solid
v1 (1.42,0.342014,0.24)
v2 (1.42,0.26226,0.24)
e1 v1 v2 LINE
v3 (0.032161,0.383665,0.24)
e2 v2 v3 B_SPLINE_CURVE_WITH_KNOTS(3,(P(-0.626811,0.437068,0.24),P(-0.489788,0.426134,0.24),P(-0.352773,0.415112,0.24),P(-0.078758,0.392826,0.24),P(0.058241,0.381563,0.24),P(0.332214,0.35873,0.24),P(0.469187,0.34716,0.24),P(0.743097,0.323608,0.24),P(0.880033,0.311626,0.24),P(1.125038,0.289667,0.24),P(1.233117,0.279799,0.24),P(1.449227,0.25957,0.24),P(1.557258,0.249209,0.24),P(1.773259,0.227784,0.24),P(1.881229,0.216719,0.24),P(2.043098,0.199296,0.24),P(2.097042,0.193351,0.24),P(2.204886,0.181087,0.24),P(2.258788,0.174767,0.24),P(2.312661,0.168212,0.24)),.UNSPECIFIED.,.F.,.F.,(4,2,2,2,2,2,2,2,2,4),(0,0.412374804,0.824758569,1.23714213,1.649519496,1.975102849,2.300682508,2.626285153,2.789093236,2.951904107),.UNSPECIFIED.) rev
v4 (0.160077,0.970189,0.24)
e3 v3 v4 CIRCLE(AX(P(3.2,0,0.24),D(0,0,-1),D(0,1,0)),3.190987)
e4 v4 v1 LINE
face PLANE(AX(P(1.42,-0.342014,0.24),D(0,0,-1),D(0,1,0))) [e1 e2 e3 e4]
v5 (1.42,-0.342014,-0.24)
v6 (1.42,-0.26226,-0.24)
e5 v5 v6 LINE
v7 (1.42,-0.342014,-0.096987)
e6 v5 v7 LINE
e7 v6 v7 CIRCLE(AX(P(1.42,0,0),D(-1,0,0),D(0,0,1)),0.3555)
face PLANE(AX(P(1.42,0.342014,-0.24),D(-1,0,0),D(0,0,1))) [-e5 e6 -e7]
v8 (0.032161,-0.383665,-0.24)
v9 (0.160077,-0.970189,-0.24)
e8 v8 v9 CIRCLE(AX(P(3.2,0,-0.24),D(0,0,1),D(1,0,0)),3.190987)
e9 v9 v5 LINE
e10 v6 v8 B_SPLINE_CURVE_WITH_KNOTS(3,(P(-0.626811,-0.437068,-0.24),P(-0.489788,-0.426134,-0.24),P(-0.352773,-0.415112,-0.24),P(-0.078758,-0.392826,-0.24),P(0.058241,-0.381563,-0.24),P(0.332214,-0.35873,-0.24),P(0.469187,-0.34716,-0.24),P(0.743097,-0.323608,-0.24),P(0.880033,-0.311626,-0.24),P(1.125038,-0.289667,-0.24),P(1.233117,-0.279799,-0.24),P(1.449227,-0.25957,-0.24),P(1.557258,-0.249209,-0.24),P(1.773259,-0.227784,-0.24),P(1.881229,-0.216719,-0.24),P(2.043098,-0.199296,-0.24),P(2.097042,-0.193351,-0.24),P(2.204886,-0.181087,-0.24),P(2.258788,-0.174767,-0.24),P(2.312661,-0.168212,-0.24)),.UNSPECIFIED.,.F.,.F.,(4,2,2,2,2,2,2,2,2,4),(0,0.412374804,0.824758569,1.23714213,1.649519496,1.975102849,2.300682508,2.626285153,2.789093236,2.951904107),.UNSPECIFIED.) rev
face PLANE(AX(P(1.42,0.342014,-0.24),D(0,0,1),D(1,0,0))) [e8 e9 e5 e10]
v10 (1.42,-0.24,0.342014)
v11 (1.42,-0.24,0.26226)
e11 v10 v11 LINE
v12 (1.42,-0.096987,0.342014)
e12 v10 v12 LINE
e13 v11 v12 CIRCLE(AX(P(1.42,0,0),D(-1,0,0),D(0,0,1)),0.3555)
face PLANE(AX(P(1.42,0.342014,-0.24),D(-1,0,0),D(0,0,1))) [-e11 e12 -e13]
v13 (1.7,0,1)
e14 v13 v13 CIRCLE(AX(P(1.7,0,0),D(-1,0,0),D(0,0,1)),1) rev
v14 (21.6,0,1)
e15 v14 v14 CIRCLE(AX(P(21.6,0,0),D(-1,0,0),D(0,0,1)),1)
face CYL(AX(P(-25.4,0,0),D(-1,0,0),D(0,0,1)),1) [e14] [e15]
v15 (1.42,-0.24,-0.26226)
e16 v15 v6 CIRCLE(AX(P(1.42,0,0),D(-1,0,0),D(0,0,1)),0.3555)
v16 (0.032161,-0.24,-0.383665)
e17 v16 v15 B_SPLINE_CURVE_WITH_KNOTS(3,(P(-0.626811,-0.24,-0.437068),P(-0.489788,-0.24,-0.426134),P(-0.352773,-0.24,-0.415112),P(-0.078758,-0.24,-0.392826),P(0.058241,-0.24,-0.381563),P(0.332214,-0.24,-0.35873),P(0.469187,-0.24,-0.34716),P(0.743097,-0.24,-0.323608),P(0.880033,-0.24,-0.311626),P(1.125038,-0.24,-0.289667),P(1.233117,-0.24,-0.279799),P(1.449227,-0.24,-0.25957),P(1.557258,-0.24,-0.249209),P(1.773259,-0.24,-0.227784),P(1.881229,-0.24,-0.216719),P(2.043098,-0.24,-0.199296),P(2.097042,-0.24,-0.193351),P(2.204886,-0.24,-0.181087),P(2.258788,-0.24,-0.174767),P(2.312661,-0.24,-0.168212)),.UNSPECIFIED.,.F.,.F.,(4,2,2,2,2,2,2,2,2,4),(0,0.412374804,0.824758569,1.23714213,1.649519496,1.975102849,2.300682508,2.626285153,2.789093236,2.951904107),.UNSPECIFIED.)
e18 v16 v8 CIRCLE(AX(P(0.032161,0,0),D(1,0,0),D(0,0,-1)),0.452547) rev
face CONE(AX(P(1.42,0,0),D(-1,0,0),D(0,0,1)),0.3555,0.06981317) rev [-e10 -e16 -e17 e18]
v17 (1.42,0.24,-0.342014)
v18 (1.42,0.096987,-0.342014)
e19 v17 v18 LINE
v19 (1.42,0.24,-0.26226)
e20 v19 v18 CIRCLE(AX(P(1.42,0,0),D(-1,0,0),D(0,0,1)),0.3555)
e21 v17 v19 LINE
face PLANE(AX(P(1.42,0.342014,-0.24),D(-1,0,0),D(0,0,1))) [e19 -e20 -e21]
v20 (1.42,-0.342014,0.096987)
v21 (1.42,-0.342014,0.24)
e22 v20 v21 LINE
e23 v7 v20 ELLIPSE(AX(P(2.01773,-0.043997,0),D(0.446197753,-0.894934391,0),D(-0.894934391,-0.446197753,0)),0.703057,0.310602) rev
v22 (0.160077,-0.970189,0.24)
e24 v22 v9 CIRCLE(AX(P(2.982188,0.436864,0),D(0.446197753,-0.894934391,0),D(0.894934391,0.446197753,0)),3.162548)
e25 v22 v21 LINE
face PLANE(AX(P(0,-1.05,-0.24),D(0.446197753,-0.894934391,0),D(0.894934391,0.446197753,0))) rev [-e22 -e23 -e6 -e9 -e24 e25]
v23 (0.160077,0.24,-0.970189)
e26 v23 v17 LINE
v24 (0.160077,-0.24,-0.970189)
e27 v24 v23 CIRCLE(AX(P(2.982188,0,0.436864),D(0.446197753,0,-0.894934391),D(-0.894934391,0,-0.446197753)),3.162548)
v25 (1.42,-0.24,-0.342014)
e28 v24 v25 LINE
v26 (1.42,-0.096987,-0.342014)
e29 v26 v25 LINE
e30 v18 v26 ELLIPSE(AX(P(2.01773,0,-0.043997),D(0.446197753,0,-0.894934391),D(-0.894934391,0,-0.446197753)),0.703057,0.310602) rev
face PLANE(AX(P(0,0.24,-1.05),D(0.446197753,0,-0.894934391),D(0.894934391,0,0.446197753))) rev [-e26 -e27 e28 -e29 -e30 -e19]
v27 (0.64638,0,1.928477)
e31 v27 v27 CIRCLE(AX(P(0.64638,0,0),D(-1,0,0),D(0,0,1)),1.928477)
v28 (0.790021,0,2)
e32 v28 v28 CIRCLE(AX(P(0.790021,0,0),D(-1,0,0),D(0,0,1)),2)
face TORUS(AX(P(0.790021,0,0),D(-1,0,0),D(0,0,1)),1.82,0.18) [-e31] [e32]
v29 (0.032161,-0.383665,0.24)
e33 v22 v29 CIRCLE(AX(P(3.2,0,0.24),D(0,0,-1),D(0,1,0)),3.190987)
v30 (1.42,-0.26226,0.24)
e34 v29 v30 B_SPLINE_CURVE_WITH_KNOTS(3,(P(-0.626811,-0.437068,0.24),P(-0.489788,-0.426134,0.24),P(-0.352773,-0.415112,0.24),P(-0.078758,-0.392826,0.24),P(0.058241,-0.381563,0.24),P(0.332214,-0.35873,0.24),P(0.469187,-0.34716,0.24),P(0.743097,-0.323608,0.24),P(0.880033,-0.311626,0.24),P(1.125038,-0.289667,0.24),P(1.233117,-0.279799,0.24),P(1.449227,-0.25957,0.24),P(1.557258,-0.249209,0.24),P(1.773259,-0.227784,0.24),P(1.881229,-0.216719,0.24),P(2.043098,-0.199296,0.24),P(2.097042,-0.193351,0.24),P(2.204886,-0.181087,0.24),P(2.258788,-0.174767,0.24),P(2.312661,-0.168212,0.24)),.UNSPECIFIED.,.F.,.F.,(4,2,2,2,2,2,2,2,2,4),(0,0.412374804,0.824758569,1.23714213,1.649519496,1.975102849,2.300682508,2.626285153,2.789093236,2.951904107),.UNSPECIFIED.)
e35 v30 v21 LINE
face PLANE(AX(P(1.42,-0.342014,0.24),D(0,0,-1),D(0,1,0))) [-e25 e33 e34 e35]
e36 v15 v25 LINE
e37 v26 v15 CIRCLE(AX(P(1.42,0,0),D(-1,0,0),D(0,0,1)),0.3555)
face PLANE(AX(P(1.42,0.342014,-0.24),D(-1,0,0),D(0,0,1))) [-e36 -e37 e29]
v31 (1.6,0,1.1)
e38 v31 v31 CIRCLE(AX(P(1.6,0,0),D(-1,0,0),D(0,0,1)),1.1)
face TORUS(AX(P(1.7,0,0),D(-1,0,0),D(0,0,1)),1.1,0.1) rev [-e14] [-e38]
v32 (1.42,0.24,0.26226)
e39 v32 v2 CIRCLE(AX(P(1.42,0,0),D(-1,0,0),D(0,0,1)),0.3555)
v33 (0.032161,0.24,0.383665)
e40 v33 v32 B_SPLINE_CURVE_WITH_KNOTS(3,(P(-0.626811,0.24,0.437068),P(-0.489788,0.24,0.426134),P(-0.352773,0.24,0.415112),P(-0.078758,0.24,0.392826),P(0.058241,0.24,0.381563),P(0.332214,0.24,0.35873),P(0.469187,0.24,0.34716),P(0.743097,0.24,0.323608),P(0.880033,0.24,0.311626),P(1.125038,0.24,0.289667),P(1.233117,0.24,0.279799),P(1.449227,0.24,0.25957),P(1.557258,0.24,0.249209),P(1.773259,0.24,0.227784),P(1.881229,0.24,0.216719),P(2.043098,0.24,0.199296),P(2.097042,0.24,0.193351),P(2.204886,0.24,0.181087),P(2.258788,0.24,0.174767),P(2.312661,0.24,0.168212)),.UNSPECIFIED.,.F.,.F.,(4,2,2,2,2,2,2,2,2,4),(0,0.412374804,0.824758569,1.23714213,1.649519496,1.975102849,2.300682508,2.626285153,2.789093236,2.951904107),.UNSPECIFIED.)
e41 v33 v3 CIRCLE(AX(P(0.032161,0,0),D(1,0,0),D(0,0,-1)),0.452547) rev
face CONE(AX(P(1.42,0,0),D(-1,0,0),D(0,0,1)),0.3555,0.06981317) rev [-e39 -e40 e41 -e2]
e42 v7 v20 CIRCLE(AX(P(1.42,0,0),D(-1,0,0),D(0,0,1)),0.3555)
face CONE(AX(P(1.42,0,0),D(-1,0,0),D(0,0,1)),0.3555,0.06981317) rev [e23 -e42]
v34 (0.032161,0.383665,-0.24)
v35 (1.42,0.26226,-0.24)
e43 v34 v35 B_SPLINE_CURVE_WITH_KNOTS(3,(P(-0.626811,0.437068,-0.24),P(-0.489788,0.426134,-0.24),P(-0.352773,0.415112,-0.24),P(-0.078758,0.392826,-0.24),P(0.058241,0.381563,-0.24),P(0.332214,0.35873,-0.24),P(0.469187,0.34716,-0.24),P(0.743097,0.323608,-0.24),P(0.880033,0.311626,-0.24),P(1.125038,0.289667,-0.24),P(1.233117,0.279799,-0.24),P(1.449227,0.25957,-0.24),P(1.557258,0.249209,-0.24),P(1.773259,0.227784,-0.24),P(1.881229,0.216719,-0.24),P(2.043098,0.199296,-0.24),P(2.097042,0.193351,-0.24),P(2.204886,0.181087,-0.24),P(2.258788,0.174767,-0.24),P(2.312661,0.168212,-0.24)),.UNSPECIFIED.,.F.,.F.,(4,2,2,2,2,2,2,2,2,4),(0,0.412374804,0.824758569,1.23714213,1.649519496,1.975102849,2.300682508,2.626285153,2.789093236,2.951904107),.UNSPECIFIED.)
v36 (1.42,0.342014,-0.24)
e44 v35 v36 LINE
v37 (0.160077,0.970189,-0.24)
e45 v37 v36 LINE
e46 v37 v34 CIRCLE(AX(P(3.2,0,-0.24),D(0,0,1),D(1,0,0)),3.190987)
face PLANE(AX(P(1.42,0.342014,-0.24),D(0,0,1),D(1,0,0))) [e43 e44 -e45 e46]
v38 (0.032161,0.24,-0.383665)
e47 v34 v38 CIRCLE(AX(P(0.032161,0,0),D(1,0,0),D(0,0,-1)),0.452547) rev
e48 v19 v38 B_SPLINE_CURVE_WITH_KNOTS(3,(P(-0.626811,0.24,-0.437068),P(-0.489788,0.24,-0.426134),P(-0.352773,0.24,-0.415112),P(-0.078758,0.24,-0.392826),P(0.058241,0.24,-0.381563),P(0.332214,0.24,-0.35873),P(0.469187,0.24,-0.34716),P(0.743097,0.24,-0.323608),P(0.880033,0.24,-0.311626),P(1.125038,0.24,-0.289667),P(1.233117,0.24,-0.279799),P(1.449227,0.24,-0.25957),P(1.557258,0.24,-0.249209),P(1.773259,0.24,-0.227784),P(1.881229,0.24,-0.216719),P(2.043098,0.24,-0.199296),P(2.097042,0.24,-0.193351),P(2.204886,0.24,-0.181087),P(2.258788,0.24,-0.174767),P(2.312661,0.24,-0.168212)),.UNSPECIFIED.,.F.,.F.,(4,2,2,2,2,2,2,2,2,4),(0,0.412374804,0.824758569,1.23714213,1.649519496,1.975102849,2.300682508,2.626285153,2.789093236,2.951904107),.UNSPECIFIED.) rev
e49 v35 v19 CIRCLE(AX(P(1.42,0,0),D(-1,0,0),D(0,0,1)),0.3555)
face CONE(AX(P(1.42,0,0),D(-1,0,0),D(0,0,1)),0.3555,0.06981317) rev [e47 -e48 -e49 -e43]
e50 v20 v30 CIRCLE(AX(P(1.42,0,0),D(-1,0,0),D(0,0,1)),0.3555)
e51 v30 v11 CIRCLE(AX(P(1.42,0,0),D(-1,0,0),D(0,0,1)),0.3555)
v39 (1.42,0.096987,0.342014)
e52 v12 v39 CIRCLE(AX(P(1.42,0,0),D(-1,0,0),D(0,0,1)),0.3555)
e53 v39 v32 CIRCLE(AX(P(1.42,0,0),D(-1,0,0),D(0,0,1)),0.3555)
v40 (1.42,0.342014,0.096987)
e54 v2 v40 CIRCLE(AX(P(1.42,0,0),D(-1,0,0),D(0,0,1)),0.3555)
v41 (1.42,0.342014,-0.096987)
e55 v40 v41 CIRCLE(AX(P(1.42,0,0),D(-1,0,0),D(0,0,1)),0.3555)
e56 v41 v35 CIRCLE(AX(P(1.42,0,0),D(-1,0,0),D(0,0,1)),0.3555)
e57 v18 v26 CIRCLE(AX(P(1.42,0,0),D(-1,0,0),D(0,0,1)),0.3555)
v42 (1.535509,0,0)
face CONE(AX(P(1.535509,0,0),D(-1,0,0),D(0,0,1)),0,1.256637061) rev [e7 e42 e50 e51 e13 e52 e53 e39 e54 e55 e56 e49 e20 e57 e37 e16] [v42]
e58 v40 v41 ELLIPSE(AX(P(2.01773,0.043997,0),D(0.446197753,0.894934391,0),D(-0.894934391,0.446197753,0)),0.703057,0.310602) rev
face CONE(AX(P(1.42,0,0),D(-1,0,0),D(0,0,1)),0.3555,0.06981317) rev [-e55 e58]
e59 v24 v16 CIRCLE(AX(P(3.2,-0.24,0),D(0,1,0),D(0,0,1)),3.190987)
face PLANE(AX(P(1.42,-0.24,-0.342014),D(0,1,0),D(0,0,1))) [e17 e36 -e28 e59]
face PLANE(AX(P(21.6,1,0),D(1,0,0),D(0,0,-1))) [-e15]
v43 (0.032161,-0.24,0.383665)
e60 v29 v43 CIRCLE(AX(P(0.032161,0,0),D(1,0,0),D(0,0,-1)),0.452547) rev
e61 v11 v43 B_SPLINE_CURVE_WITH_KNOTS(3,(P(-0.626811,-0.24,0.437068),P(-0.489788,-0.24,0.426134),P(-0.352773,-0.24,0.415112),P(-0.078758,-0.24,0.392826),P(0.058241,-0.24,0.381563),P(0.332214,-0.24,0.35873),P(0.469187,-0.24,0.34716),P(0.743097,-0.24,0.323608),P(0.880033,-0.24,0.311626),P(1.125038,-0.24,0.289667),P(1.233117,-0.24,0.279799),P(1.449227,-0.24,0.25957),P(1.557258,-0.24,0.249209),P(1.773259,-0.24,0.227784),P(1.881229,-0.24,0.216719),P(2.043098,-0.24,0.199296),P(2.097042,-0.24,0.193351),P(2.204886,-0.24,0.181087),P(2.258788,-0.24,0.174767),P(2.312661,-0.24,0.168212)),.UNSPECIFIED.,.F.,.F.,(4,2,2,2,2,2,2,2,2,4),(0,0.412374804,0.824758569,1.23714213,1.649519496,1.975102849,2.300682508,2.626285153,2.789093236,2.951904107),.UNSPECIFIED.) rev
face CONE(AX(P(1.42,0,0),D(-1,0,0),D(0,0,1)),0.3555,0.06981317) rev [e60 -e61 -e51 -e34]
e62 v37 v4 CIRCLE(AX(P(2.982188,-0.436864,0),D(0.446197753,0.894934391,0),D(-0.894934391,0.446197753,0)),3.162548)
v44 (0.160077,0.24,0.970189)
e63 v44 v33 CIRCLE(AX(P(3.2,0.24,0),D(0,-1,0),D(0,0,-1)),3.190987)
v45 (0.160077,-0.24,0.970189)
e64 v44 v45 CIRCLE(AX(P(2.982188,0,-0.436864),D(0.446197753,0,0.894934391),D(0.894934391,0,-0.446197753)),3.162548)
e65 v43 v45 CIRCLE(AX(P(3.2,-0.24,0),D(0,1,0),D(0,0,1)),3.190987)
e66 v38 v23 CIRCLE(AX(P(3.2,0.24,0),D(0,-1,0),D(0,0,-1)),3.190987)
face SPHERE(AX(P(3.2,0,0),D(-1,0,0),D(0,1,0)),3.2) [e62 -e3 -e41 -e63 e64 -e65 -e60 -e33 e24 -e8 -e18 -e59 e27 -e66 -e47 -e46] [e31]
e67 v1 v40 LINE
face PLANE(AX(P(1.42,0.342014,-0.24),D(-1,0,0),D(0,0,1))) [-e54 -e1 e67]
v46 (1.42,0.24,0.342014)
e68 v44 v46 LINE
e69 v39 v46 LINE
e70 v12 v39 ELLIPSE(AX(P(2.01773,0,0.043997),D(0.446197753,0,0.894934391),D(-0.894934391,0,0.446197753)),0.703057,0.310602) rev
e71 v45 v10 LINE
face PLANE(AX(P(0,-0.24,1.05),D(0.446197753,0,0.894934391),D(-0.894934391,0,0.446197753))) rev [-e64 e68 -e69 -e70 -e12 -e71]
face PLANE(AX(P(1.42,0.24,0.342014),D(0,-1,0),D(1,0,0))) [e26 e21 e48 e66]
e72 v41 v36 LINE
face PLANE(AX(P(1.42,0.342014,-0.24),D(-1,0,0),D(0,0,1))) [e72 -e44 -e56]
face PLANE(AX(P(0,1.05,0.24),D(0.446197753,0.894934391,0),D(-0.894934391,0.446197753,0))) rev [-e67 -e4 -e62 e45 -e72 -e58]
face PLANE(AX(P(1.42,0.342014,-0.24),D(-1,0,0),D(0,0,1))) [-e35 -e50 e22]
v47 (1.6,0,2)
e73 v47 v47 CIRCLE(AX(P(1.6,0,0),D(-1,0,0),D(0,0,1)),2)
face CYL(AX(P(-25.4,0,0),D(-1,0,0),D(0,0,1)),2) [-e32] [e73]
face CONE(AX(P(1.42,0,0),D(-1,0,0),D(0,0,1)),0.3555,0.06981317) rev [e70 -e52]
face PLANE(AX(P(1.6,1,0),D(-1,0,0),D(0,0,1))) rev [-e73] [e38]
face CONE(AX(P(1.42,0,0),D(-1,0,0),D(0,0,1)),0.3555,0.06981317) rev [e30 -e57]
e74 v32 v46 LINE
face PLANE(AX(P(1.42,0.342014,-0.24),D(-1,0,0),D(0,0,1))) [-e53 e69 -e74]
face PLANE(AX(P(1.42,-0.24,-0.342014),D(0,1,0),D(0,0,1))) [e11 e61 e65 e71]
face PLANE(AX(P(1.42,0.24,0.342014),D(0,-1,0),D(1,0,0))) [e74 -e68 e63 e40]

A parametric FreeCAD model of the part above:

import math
import FreeCAD as App
import Part
import Sketcher
from FreeCAD import Vector
Q = App.Units.Quantity


def edges_at(feature, points):
    """Names of the edges that pass closest to the given points."""
    edges = feature.Shape.Edges
    near = lambda p: min(range(len(edges)), key=lambda i: edges[i].distToShape(Part.Vertex(*p))[0])
    return sorted({f"Edge{near(p) + 1}" for p in points})


def add_polygon(sketch, points):
    """Adds a closed chain of lines whose ends are joined by coincident constraints."""
    first, n = sketch.GeometryCount, len(points)
    for a, b in zip(points, points[1:] + points[:1]):
        sketch.addGeometry(Part.LineSegment(App.Vector(*a, 0), App.Vector(*b, 0)), False)
    for i in range(n):
        sketch.addConstraint(Sketcher.Constraint("Coincident", first + i, 2, first + (i + 1) % n, 1))

doc = App.newDocument("Part")
params = doc.addObject("Spreadsheet::Sheet", "Params")
for row, (alias, value) in enumerate([
    ("sketch1_radius", "3.2 mm"),
    ("sketch1_width", "20 mm"),
    ("sketch1_height", "1 mm"),
    ("sketch1_radius2", "0.18 mm"),
    ("sketch1_width2", "21.6 mm"),
    ("revolution_angle", "360 deg"),
    ("fillet_radius", "0.1 mm"),
    ("sketch2_width", "2.1 mm"),
    ("sketch2_height", "0.48 mm"),
    ("sketch3_height", "0.48 mm"),
    ("groove_angle", "360 deg"),
], start=1):
    params.set(f"A{row}", alias)
    params.set(f"B{row}", "=" + value)
    params.setAlias(f"B{row}", alias)

body = doc.addObject("PartDesign::Body", "Body")

# Sketch on XY plane
sketch1 = body.newObject("Sketcher::SketchObject", "Sketch")
sketch1.AttachmentSupport = (doc.getObject("XY_Plane"), [""])
sketch1.MapMode = "FlatFace"
sketch1.addGeometry([
    Part.LineSegment(Vector(1.6, 1, 0), Vector(1.6, 2, 0)),  # 0
    Part.LineSegment(Vector(1.6, 2, 0), Vector(0.790021, 2, 0)),  # 1
    Part.ArcOfCircle(Part.Circle(Vector(0.790021, 1.82, 0), Vector(0, 0, 1), 0.18), math.radians(90), math.radians(142.940145)),  # 2
    Part.ArcOfCircle(Part.Circle(Vector(3.2, 0, 0), Vector(0, 0, 1), 3.2), math.radians(142.940145), math.radians(180)),  # 3
    Part.LineSegment(Vector(0, 0, 0), Vector(21.6, 0, 0)),  # 4
    Part.LineSegment(Vector(21.6, 0, 0), Vector(21.6, 1, 0)),  # 5
    Part.LineSegment(Vector(21.6, 1, 0), Vector(1.6, 1, 0)),  # 6
], False)
sketch1.addConstraint([
    Sketcher.Constraint("Coincident", 0, 2, 1, 1),
    Sketcher.Constraint("Tangent", 1, 2, 2, 1),
    Sketcher.Constraint("Tangent", 2, 2, 3, 1),
    Sketcher.Constraint("Coincident", 3, 2, 4, 1),
    Sketcher.Constraint("Coincident", 4, 2, 5, 1),
    Sketcher.Constraint("Coincident", 5, 2, 6, 1),
    Sketcher.Constraint("Coincident", 6, 2, 0, 1),
    Sketcher.Constraint("Vertical", 0),
    Sketcher.Constraint("Horizontal", 1),
    Sketcher.Constraint("Horizontal", 4),
    Sketcher.Constraint("Vertical", 5),
    Sketcher.Constraint("Horizontal", 6),
    Sketcher.Constraint("Coincident", 3, 2, -1, 1),
    Sketcher.Constraint("PointOnObject", 3, 3, -1),
    Sketcher.Constraint("Equal", 0, 5),
    Sketcher.Constraint("Radius", 3, 3.2),
    Sketcher.Constraint("DistanceX", 6, 2, 6, 1, 20.0),
    Sketcher.Constraint("DistanceY", 0, 1, 0, 2, 1.0),
    Sketcher.Constraint("Radius", 2, 0.18),
    Sketcher.Constraint("DistanceX", 4, 1, 4, 2, 21.6),
])
sketch1.setExpression("Constraints[15]", "Params.sketch1_radius")
sketch1.setExpression("Constraints[16]", "Params.sketch1_width")
sketch1.setExpression("Constraints[17]", "Params.sketch1_height")
sketch1.setExpression("Constraints[18]", "Params.sketch1_radius2")
sketch1.setExpression("Constraints[19]", "Params.sketch1_width2")
revolution = body.newObject("PartDesign::Revolution", "Revolution")
revolution.Profile = sketch1
revolution.ReferenceAxis = (sketch1, ["H_Axis"])
revolution.setExpression("Angle", "Params.revolution_angle")
doc.recompute()

fillet = body.newObject("PartDesign::Fillet", "Fillet")
fillet.Base = (revolution, edges_at(revolution, [(1.6, 0, -1)]))
fillet.setExpression("Radius", "Params.fillet_radius")

# Sketch on YZ plane
sketch2 = body.newObject("Sketcher::SketchObject", "Sketch001")
sketch2.AttachmentSupport = (doc.getObject("YZ_Plane"), [""])
sketch2.MapMode = "FlatFace"
add_polygon(sketch2, [(-1.05, 0.24), (-1.05, -0.24), (1.05, -0.24), (1.05, 0.24)])  # lines 0-3
sketch2.addConstraint([
    Sketcher.Constraint("Vertical", 0),
    Sketcher.Constraint("Horizontal", 1),
    Sketcher.Constraint("Vertical", 2),
    Sketcher.Constraint("Horizontal", 3),
    Sketcher.Constraint("Symmetric", 0, 2, 2, 2, -1, 1),
    Sketcher.Constraint("DistanceX", 1, 1, 1, 2, 2.1),
    Sketcher.Constraint("DistanceY", 0, 2, 0, 1, 0.48),
])
sketch2.setExpression("Constraints[9]", "Params.sketch2_width")
sketch2.setExpression("Constraints[10]", "Params.sketch2_height")

# Sketch on YZ plane
sketch3 = body.newObject("Sketcher::SketchObject", "Sketch002")
sketch3.AttachmentSupport = (doc.getObject("YZ_Plane"), [""])
sketch3.MapMode = "FlatFace"
sketch3.AttachmentOffset = App.Placement(Vector(0, 0, 1.42), App.Rotation())
add_polygon(sketch3, [(-0.342014, 0.24), (-0.342014, -0.24), (0.342014, -0.24), (0.342014, 0.24)])  # lines 0-3
sketch3.addConstraint([
    Sketcher.Constraint("Vertical", 0),
    Sketcher.Constraint("Horizontal", 1),
    Sketcher.Constraint("Vertical", 2),
    Sketcher.Constraint("Horizontal", 3),
    Sketcher.Constraint("Symmetric", 0, 2, 2, 2, -1, 1),
    Sketcher.Constraint("DistanceY", 0, 2, 0, 1, 0.48),
    Sketcher.Constraint("DistanceX", 1, 1, 1, 2, 0.684028),
])
sketch3.setExpression("Constraints[9]", "Params.sketch3_height")

subtractiveloft = body.newObject("PartDesign::SubtractiveLoft", "SubtractiveLoft")
subtractiveloft.Profile = sketch2
subtractiveloft.Sections = [sketch3]
doc.recompute()

polarpattern = body.newObject("PartDesign::PolarPattern", "PolarPattern")
polarpattern.Originals = [subtractiveloft]
polarpattern.Axis = (doc.getObject("X_Axis"), [""])
polarpattern.Angle = 90
polarpattern.Occurrences = 2
body.Tip = polarpattern

# Sketch on XY plane
sketch4 = body.newObject("Sketcher::SketchObject", "Sketch003")
sketch4.AttachmentSupport = (doc.getObject("XY_Plane"), [""])
sketch4.MapMode = "FlatFace"
add_polygon(sketch4, [(0, 0.454796), (0, 0), (1.535509, 0), (1.42, 0.3555)])  # lines 0-3
sketch4.addConstraint([
    Sketcher.Constraint("Vertical", 0),
    Sketcher.Constraint("Horizontal", 1),
    Sketcher.Constraint("Coincident", 0, 2, -1, 1),
    Sketcher.Constraint("Angle", 2, Q("108 deg")),
    Sketcher.Constraint("Angle", 3, Q("176 deg")),
    Sketcher.Constraint("DistanceX", -1, 1, 2, 2, 1.42),
    Sketcher.Constraint("DistanceX", 1, 1, 1, 2, 1.535509),
])
groove = body.newObject("PartDesign::Groove", "Groove")
groove.Profile = sketch4
groove.ReferenceAxis = (sketch4, ["H_Axis"])
groove.setExpression("Angle", "Params.groove_angle")

doc.recompute()
